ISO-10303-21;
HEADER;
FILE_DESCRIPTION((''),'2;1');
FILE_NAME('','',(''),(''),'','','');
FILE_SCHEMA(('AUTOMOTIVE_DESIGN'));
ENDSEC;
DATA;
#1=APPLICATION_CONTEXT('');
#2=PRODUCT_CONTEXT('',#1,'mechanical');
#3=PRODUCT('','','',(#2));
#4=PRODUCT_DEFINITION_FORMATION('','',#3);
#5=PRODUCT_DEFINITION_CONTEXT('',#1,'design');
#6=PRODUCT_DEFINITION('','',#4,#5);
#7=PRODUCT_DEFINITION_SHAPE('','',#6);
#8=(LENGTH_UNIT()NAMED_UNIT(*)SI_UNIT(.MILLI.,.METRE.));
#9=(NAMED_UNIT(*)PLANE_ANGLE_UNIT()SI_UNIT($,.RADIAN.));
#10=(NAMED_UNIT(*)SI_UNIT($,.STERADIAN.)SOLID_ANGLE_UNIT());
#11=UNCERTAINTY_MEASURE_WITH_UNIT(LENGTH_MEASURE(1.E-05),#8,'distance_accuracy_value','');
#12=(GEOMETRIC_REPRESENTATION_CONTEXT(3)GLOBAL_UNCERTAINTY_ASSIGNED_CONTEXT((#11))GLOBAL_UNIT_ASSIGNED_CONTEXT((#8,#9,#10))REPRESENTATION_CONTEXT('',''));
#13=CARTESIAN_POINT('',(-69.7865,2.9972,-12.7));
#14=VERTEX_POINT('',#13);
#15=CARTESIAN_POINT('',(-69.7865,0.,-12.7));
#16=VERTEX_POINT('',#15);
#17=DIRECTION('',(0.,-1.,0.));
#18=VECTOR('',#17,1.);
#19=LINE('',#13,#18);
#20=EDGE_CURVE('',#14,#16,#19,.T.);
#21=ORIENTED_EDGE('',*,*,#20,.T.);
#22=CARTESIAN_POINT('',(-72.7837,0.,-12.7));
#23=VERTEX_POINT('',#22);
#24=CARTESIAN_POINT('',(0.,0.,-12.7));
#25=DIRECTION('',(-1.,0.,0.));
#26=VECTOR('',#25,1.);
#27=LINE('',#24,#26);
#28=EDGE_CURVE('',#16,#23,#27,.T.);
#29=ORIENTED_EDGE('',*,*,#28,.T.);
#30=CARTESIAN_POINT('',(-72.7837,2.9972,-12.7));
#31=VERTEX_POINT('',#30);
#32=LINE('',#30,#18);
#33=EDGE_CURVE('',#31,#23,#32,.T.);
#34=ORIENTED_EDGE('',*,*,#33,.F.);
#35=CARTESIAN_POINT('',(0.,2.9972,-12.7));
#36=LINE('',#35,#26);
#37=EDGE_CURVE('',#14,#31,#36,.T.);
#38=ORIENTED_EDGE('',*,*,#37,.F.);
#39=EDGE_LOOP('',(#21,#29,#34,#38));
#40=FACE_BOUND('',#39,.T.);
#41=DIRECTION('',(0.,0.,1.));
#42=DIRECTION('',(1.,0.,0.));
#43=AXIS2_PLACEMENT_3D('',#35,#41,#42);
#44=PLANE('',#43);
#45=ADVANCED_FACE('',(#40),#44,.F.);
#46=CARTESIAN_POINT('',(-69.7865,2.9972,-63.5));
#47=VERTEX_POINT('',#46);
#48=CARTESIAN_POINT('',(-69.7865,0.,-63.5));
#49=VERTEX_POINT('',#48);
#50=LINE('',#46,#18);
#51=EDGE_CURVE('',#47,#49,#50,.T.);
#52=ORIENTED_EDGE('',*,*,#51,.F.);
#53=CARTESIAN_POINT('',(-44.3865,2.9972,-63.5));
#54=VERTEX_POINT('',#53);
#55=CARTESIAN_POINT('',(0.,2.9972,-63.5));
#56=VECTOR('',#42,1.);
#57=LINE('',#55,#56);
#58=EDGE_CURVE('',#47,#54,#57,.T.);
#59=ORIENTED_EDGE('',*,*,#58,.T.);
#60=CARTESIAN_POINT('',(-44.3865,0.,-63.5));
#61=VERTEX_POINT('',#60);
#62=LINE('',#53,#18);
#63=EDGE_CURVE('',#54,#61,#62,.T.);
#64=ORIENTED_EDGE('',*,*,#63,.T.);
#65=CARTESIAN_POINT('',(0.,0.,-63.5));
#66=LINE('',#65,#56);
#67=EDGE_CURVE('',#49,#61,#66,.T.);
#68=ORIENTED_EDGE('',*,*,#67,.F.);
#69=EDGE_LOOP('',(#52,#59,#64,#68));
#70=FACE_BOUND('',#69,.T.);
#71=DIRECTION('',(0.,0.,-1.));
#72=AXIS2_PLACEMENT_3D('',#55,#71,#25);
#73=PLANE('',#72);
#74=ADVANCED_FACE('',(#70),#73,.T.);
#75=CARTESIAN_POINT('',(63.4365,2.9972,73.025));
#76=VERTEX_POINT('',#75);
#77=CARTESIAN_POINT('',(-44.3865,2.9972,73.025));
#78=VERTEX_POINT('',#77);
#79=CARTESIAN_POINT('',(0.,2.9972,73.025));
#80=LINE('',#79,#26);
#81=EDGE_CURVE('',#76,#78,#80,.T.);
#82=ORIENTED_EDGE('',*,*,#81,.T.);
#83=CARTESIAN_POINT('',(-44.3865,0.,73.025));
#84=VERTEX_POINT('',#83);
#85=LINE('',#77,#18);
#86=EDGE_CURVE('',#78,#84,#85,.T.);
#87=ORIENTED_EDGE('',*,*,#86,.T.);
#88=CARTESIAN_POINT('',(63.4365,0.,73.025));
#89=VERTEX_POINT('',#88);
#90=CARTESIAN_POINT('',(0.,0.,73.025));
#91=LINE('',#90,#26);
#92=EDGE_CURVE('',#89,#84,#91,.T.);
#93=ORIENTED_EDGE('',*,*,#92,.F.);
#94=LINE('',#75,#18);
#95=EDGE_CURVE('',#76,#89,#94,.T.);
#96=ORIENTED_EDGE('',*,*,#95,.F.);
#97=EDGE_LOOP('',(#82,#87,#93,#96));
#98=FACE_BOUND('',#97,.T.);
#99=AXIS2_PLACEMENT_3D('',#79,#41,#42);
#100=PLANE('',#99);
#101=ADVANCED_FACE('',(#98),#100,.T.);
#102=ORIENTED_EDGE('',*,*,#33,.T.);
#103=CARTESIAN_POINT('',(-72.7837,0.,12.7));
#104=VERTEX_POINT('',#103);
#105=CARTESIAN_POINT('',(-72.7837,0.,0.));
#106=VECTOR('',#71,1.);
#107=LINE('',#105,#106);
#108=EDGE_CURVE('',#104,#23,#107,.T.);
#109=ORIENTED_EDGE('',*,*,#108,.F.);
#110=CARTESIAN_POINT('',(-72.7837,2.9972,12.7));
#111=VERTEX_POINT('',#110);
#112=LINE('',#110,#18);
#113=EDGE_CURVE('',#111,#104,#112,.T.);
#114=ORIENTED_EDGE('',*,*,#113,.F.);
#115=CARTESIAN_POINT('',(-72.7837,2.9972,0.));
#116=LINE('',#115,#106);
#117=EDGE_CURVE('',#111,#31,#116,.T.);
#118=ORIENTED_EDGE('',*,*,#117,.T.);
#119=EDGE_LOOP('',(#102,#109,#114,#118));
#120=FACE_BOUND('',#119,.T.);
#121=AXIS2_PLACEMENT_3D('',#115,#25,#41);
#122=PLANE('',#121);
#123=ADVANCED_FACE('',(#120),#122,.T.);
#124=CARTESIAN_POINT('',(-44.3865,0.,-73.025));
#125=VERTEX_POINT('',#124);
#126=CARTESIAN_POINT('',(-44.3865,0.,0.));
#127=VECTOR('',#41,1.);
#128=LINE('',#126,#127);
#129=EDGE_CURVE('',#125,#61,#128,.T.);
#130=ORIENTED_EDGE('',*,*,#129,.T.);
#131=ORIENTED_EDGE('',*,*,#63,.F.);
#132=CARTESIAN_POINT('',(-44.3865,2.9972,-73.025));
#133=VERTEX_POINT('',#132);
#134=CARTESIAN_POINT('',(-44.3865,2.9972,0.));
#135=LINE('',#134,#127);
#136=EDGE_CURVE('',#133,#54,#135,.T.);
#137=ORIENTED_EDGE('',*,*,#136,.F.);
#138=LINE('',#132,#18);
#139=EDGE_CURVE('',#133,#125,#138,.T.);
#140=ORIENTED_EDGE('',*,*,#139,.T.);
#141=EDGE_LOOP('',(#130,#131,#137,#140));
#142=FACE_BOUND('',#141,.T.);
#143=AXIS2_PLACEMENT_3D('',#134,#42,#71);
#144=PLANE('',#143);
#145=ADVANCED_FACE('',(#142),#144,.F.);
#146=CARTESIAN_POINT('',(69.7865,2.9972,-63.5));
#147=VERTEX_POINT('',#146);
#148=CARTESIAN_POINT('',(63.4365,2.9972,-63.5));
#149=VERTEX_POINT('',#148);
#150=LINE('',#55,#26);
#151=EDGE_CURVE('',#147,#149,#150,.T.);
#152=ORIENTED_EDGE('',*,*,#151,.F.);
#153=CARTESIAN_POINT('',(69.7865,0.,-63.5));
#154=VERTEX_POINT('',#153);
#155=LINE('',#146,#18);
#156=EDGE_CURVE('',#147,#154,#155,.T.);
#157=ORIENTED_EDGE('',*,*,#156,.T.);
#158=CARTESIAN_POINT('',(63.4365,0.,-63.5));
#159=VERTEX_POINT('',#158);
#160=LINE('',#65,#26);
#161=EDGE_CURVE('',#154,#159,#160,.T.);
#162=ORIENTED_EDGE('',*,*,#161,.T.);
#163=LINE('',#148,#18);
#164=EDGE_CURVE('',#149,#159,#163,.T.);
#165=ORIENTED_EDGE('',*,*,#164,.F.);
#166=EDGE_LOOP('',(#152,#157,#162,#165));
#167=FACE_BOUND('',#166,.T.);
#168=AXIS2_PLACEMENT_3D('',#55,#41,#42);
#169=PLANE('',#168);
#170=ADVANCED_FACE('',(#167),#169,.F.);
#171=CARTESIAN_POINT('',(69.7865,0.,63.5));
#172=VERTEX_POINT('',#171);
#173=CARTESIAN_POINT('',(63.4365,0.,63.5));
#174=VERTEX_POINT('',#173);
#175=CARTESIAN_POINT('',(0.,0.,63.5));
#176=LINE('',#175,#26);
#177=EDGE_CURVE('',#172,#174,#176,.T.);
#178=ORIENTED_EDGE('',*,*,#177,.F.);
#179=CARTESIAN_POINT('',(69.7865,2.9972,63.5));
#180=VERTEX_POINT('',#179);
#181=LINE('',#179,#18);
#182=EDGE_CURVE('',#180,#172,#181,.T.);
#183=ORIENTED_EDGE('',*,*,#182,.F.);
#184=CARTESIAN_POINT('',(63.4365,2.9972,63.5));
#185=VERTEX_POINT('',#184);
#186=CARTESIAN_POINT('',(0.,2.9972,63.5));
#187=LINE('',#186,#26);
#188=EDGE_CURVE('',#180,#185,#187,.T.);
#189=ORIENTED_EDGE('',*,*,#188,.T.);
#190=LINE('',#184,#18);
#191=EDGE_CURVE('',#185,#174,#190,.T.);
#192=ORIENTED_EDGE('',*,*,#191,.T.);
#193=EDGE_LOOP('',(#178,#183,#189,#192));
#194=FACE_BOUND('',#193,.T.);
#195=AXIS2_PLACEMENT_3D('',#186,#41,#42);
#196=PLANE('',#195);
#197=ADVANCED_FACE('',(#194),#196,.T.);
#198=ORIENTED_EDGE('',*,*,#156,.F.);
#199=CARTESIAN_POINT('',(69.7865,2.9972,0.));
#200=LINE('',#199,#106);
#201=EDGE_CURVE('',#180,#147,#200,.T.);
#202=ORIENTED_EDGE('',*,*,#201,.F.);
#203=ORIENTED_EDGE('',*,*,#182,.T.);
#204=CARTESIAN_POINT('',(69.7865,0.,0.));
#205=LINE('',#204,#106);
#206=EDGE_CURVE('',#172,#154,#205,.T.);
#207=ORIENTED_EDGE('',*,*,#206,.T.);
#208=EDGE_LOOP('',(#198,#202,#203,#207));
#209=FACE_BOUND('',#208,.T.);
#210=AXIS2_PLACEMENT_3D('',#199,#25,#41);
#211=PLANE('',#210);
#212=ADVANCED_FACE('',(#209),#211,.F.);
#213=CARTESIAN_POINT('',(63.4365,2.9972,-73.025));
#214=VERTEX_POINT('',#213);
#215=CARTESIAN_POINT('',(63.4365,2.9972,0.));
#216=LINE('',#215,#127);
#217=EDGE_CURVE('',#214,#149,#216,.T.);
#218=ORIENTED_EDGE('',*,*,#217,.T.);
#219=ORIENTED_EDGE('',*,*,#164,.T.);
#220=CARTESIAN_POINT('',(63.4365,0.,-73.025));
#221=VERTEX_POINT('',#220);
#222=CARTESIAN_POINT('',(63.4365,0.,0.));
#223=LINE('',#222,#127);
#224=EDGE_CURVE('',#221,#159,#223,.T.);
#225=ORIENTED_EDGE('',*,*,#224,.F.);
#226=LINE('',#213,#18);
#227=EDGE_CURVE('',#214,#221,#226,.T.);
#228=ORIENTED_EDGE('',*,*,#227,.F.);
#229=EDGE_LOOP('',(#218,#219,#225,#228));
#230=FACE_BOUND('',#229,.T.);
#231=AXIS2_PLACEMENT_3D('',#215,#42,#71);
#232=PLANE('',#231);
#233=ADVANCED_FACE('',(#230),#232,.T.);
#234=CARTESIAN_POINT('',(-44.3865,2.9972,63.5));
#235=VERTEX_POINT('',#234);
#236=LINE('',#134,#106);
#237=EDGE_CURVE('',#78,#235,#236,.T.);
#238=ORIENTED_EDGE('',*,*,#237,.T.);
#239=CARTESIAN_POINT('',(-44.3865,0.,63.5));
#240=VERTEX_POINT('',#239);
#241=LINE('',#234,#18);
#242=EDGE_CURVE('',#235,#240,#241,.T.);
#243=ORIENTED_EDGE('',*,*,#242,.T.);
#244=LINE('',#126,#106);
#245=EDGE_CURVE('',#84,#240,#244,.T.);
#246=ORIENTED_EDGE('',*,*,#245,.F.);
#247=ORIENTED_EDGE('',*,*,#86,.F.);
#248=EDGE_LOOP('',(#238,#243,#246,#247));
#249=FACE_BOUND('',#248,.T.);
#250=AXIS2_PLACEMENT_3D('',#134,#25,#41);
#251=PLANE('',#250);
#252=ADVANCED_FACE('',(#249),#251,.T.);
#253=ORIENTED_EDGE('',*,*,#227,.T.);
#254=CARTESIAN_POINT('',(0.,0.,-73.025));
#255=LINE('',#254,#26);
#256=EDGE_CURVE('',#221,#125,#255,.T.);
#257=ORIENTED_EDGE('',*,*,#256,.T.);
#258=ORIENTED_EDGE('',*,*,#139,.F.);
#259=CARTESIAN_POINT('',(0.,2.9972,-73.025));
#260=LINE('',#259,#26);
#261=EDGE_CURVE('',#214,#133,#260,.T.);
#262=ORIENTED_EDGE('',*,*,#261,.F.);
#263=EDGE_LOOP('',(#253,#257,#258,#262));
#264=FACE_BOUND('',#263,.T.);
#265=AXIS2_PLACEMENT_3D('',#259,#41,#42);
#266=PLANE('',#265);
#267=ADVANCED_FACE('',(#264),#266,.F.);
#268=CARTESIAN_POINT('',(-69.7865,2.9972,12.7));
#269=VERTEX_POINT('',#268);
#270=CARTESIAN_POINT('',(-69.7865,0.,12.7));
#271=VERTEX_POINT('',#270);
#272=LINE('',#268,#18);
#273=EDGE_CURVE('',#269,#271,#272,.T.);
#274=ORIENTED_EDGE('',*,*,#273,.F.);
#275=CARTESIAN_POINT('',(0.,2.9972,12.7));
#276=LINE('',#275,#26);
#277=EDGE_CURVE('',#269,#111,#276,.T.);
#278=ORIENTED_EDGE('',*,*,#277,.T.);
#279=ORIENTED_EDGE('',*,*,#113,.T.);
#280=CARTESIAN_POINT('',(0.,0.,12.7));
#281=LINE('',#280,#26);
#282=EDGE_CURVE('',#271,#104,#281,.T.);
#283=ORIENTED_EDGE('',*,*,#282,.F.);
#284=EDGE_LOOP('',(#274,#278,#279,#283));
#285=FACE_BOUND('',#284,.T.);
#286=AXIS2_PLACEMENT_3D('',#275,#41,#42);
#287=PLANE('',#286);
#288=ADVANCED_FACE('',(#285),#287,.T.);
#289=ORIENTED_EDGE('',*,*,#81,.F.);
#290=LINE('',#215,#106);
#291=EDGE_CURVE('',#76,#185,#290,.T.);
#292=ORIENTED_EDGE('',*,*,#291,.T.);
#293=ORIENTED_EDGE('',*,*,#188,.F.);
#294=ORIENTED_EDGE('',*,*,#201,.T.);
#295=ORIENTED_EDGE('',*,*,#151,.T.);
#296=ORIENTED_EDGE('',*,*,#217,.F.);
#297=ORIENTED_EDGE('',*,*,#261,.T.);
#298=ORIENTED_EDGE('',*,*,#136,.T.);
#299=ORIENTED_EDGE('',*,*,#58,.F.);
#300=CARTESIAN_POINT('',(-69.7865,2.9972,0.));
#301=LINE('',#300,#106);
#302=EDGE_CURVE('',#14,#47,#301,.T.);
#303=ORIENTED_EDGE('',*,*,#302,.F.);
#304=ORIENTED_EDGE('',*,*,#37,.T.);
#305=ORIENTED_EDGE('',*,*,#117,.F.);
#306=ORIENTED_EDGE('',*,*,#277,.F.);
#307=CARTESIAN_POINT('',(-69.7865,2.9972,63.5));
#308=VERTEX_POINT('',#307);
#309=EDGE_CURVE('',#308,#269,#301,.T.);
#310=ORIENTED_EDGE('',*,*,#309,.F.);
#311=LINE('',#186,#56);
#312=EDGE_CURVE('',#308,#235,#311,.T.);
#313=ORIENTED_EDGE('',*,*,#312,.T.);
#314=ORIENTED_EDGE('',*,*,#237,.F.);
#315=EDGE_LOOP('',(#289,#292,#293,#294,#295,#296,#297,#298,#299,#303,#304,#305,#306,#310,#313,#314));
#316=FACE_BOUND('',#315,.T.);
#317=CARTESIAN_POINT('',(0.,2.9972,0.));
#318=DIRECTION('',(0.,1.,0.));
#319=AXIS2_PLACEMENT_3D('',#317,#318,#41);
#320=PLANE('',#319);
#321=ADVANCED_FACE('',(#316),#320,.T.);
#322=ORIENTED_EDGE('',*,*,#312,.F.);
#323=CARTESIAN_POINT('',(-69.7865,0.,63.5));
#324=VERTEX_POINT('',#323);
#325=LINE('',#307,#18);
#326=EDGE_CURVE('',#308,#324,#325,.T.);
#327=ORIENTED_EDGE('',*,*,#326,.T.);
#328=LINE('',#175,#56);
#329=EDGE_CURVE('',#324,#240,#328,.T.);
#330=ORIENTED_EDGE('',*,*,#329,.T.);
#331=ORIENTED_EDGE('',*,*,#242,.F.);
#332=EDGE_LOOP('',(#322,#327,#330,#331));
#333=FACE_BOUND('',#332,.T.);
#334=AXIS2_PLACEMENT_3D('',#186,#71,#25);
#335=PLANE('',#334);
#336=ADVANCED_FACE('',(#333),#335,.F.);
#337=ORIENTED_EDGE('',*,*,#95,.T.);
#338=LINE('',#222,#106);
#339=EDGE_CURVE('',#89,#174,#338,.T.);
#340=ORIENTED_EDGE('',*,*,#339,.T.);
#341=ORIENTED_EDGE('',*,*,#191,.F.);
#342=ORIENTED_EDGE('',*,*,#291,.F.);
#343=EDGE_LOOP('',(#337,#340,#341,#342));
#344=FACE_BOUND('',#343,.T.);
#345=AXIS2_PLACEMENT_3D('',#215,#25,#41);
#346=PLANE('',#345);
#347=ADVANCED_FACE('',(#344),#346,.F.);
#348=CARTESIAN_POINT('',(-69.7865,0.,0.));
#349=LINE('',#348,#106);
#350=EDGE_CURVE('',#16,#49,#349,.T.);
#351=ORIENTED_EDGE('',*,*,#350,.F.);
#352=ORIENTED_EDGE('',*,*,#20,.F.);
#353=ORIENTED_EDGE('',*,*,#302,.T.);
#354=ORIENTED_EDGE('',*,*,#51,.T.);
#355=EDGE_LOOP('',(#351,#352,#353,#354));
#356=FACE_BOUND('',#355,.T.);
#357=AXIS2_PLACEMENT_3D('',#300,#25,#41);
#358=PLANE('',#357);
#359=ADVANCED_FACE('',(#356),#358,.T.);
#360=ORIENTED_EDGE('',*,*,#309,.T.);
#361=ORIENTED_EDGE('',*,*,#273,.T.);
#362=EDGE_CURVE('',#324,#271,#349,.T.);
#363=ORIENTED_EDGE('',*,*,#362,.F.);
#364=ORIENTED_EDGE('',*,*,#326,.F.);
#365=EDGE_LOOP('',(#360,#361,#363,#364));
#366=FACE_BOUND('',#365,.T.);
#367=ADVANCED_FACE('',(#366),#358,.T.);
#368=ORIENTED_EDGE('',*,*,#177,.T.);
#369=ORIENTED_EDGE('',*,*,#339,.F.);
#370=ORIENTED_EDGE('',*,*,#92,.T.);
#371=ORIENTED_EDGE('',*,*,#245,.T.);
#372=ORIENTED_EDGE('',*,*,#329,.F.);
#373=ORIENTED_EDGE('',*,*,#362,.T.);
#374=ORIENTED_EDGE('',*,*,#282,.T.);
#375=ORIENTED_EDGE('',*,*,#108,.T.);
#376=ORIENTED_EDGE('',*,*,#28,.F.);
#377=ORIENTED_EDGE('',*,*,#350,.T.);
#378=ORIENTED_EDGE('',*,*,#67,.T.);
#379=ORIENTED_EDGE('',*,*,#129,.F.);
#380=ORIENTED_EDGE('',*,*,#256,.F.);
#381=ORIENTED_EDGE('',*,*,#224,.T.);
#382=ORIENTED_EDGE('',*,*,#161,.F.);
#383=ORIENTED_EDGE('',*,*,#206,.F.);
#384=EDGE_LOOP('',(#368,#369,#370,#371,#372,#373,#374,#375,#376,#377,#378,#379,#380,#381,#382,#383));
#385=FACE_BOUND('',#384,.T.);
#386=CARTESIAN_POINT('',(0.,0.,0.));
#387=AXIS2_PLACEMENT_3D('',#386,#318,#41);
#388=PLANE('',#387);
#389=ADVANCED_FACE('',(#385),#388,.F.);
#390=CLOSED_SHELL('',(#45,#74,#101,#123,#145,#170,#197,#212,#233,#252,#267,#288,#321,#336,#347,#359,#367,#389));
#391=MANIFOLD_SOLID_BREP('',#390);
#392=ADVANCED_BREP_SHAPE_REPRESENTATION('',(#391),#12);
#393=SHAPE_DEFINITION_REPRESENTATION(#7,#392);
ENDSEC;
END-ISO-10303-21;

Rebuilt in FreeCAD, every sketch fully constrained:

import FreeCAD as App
import Part
import Sketcher
from FreeCAD import Vector
Q = App.Units.Quantity

doc = App.newDocument("Part")
body = doc.addObject("PartDesign::Body", "Body")

# Sketch on XZ plane
sketch1 = body.newObject("Sketcher::SketchObject", "Sketch")
sketch1.AttachmentSupport = (doc.getObject("XZ_Plane"), [""])
sketch1.MapMode = "FlatFace"
sketch1.addGeometry([
    Part.LineSegment(Vector(-44.3865, 73.025, 0), Vector(63.4365, 73.025, 0)),  # 0
    Part.LineSegment(Vector(63.4365, 73.025, 0), Vector(63.4365, 63.5, 0)),  # 1
    Part.LineSegment(Vector(63.4365, 63.5, 0), Vector(69.7865, 63.5, 0)),  # 2
    Part.LineSegment(Vector(69.7865, 63.5, 0), Vector(69.7865, -63.5, 0)),  # 3
    Part.LineSegment(Vector(69.7865, -63.5, 0), Vector(63.4365, -63.5, 0)),  # 4
    Part.LineSegment(Vector(63.4365, -63.5, 0), Vector(63.4365, -73.025, 0)),  # 5
    Part.LineSegment(Vector(63.4365, -73.025, 0), Vector(-44.3865, -73.025, 0)),  # 6
    Part.LineSegment(Vector(-44.3865, -73.025, 0), Vector(-44.3865, -63.5, 0)),  # 7
    Part.LineSegment(Vector(-44.3865, -63.5, 0), Vector(-69.7865, -63.5, 0)),  # 8
    Part.LineSegment(Vector(-69.7865, -63.5, 0), Vector(-69.7865, -12.7, 0)),  # 9
    Part.LineSegment(Vector(-69.7865, -12.7, 0), Vector(-72.7837, -12.7, 0)),  # 10
    Part.LineSegment(Vector(-72.7837, -12.7, 0), Vector(-72.7837, 12.7, 0)),  # 11
    Part.LineSegment(Vector(-72.7837, 12.7, 0), Vector(-69.7865, 12.7, 0)),  # 12
    Part.LineSegment(Vector(-69.7865, 12.7, 0), Vector(-69.7865, 63.5, 0)),  # 13
    Part.LineSegment(Vector(-69.7865, 63.5, 0), Vector(-44.3865, 63.5, 0)),  # 14
    Part.LineSegment(Vector(-44.3865, 63.5, 0), Vector(-44.3865, 73.025, 0)),  # 15
], False)
sketch1.addConstraint([
    Sketcher.Constraint("Coincident", 0, 2, 1, 1),
    Sketcher.Constraint("Coincident", 1, 2, 2, 1),
    Sketcher.Constraint("Coincident", 2, 2, 3, 1),
    Sketcher.Constraint("Coincident", 3, 2, 4, 1),
    Sketcher.Constraint("Coincident", 4, 2, 5, 1),
    Sketcher.Constraint("Coincident", 5, 2, 6, 1),
    Sketcher.Constraint("Coincident", 6, 2, 7, 1),
    Sketcher.Constraint("Coincident", 7, 2, 8, 1),
    Sketcher.Constraint("Coincident", 8, 2, 9, 1),
    Sketcher.Constraint("Coincident", 9, 2, 10, 1),
    Sketcher.Constraint("Coincident", 10, 2, 11, 1),
    Sketcher.Constraint("Coincident", 11, 2, 12, 1),
    Sketcher.Constraint("Coincident", 12, 2, 13, 1),
    Sketcher.Constraint("Coincident", 13, 2, 14, 1),
    Sketcher.Constraint("Coincident", 14, 2, 15, 1),
    Sketcher.Constraint("Coincident", 15, 2, 0, 1),
    Sketcher.Constraint("Horizontal", 0),
    Sketcher.Constraint("Vertical", 1),
    Sketcher.Constraint("Horizontal", 2),
    Sketcher.Constraint("Vertical", 3),
    Sketcher.Constraint("Horizontal", 4),
    Sketcher.Constraint("Vertical", 5),
    Sketcher.Constraint("Horizontal", 6),
    Sketcher.Constraint("Vertical", 7),
    Sketcher.Constraint("Horizontal", 8),
    Sketcher.Constraint("Vertical", 9),
    Sketcher.Constraint("Horizontal", 10),
    Sketcher.Constraint("Vertical", 11),
    Sketcher.Constraint("Horizontal", 12),
    Sketcher.Constraint("Vertical", 13),
    Sketcher.Constraint("Horizontal", 14),
    Sketcher.Constraint("Vertical", 15),
    Sketcher.Constraint("Symmetric", 2, 2, 8, 2, -1, 1),
    Sketcher.Constraint("Symmetric", 3, 2, 13, 2, -1, 1),
    Sketcher.Constraint("Symmetric", 1, 2, 4, 2, -1),
    Sketcher.Constraint("Symmetric", 6, 2, 15, 2, -1),
    Sketcher.Constraint("Equal", 14, 11),
    Sketcher.Constraint("Equal", 9, 13),
    Sketcher.Constraint("DistanceX", 8, 2, 8, 1, Q("1 in")),
    Sketcher.Constraint("DistanceY", 3, 2, 3, 1, Q("5 in")),
    Sketcher.Constraint("DistanceX", 2, 1, 2, 2, Q("0.25 in")),
    Sketcher.Constraint("DistanceX", 0, 1, 0, 2, Q("4.245 in")),
    Sketcher.Constraint("DistanceX", 10, 2, 10, 1, Q("0.118 in")),
    Sketcher.Constraint("DistanceY", 1, 2, 1, 1, Q("0.375 in")),
])
pad1 = body.newObject("PartDesign::Pad", "Pad")
pad1.Profile = sketch1
pad1.Length = Q("0.118 in")
pad1.Reversed = True

doc.recompute()
